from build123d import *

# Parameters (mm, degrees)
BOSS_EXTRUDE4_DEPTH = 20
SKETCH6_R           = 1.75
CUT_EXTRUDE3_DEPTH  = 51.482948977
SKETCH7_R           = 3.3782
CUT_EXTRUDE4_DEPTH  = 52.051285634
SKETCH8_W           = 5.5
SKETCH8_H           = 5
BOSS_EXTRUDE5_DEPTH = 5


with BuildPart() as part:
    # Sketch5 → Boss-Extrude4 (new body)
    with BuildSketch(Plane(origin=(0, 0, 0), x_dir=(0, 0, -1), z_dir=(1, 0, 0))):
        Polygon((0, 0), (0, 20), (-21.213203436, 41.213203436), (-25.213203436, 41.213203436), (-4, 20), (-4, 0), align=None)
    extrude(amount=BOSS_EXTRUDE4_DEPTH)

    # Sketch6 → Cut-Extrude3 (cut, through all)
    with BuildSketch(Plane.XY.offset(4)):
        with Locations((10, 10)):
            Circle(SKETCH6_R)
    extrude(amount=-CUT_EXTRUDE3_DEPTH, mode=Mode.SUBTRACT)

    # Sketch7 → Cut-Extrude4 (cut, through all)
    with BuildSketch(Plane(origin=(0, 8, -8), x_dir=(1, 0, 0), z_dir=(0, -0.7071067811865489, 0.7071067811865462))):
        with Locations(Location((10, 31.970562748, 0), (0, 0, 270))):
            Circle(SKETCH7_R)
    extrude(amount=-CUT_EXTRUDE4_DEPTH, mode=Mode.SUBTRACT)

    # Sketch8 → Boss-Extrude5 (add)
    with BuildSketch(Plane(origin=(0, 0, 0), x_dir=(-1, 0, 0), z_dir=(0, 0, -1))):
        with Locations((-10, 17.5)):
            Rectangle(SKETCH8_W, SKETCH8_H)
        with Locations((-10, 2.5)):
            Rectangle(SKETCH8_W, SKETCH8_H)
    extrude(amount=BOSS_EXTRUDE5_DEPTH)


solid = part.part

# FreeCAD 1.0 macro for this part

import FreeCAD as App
import Part
import Sketcher
from FreeCAD import Vector
Q = App.Units.Quantity

doc = App.newDocument("Part")
body = doc.addObject("PartDesign::Body", "Body")

# Sketch on YZ plane
sketch1 = body.newObject("Sketcher::SketchObject", "Sketch")
sketch1.AttachmentSupport = (doc.getObject("YZ_Plane"), [""])
sketch1.MapMode = "FlatFace"
sketch1.addGeometry([
    Part.LineSegment(Vector(0, 0, 0), Vector(20, 0, 0)),  # 0
    Part.LineSegment(Vector(20, 0, 0), Vector(41.2, 21.2, 0)),  # 1
    Part.LineSegment(Vector(41.2, 21.2, 0), Vector(41.2, 25.2, 0)),  # 2
    Part.LineSegment(Vector(41.2, 25.2, 0), Vector(20, 4, 0)),  # 3
    Part.LineSegment(Vector(20, 4, 0), Vector(0, 4, 0)),  # 4
    Part.LineSegment(Vector(0, 4, 0), Vector(0, 0, 0)),  # 5
], False)
sketch1.addConstraint([
    Sketcher.Constraint("Coincident", 0, 2, 1, 1),
    Sketcher.Constraint("Coincident", 1, 2, 2, 1),
    Sketcher.Constraint("Coincident", 2, 2, 3, 1),
    Sketcher.Constraint("Coincident", 3, 2, 4, 1),
    Sketcher.Constraint("Coincident", 4, 2, 5, 1),
    Sketcher.Constraint("Coincident", 5, 2, 0, 1),
    Sketcher.Constraint("Horizontal", 0),
    Sketcher.Constraint("Vertical", 2),
    Sketcher.Constraint("Horizontal", 4),
    Sketcher.Constraint("Vertical", 5),
    Sketcher.Constraint("Coincident", 5, 2, -1, 1),
    Sketcher.Constraint("Parallel", 1, 3),
    Sketcher.Constraint("Vertical", 0, 2, 3, 2),
    Sketcher.Constraint("DistanceX", 0, 1, 0, 2, Q("20 mm")),
    Sketcher.Constraint("DistanceY", 2, 1, 2, 2, Q("4 mm")),
    Sketcher.Constraint("Angle", 1, Q("45 deg")),
    Sketcher.Constraint("Distance", 1, Q("30 mm")),
])
pad1 = body.newObject("PartDesign::Pad", "Pad")
pad1.Profile = sketch1
pad1.Length = 20

# Sketch on XY plane
sketch2 = body.newObject("Sketcher::SketchObject", "Sketch001")
sketch2.AttachmentSupport = (doc.getObject("XY_Plane"), [""])
sketch2.MapMode = "FlatFace"
sketch2.AttachmentOffset = App.Placement(Vector(0, 0, 4), App.Rotation())
sketch2.addGeometry(Part.Circle(Vector(10, 10, 0), Vector(0, 0, 1), 1.8), False)
sketch2.addConstraint([
    Sketcher.Constraint("Diameter", 0, Q("3.5 mm")),
    Sketcher.Constraint("DistanceX", -1, 1, 0, 3, Q("10 mm")),
    Sketcher.Constraint("DistanceY", -1, 1, 0, 3, Q("10 mm")),
])
pocket1 = body.newObject("PartDesign::Pocket", "Pocket")
pocket1.Profile = sketch2
pocket1.Type = "ThroughAll"

# Sketch on an angled plane
sketch3 = body.newObject("Sketcher::SketchObject", "Sketch002")
sketch3.Placement = App.Placement(Vector(0, 8, -8), App.Rotation(Vector(1, 0, 0), Vector(0, 0.707106781, 0.707106781), Vector(0, -0.707106781, 0.707106781), "ZXY"))
sketch3.addGeometry(Part.Circle(Vector(10, 32, 0), Vector(0, 0, 1), 3.4), False)
sketch3.addConstraint([
    Sketcher.Constraint("DistanceX", -1, 1, 0, 3, Q("10 mm")),
    Sketcher.Constraint("Diameter", 0, Q("6.7564 mm")),
    Sketcher.Constraint("DistanceY", -1, 1, 0, 3, Q("31.970563 mm")),
])
pocket2 = body.newObject("PartDesign::Pocket", "Pocket001")
pocket2.Profile = sketch3
pocket2.Type = "ThroughAll"

# Sketch on XY plane
sketch4 = body.newObject("Sketcher::SketchObject", "Sketch003")
sketch4.AttachmentSupport = (doc.getObject("XY_Plane"), [""])
sketch4.MapMode = "FlatFace"
sketch4.addGeometry([
    Part.LineSegment(Vector(13, 20, 0), Vector(13, 15, 0)),  # 0
    Part.LineSegment(Vector(13, 15, 0), Vector(7, 15, 0)),  # 1
    Part.LineSegment(Vector(7, 15, 0), Vector(7, 20, 0)),  # 2
    Part.LineSegment(Vector(7, 20, 0), Vector(13, 20, 0)),  # 3
    Part.LineSegment(Vector(13, 5, 0), Vector(13, 0, 0)),  # 4
    Part.LineSegment(Vector(13, 0, 0), Vector(7, 0, 0)),  # 5
    Part.LineSegment(Vector(7, 0, 0), Vector(7, 5, 0)),  # 6
    Part.LineSegment(Vector(7, 5, 0), Vector(13, 5, 0)),  # 7
], False)
sketch4.addConstraint([
    Sketcher.Constraint("Coincident", 0, 2, 1, 1),
    Sketcher.Constraint("Coincident", 1, 2, 2, 1),
    Sketcher.Constraint("Coincident", 2, 2, 3, 1),
    Sketcher.Constraint("Coincident", 3, 2, 0, 1),
    Sketcher.Constraint("Coincident", 4, 2, 5, 1),
    Sketcher.Constraint("Coincident", 5, 2, 6, 1),
    Sketcher.Constraint("Coincident", 6, 2, 7, 1),
    Sketcher.Constraint("Coincident", 7, 2, 4, 1),
    Sketcher.Constraint("Vertical", 0),
    Sketcher.Constraint("Horizontal", 1),
    Sketcher.Constraint("Vertical", 2),
    Sketcher.Constraint("Horizontal", 3),
    Sketcher.Constraint("Vertical", 4),
    Sketcher.Constraint("Horizontal", 5),
    Sketcher.Constraint("Vertical", 6),
    Sketcher.Constraint("Horizontal", 7),
    Sketcher.Constraint("PointOnObject", 4, 2, -1),
    Sketcher.Constraint("Vertical", 3, 2, 4, 2),
    Sketcher.Constraint("Vertical", 2, 2, 5, 2),
    Sketcher.Constraint("Equal", 2, 4),
    Sketcher.Constraint("DistanceY", 0, 2, 0, 1, Q("5 mm")),
    Sketcher.Constraint("DistanceX", 1, 2, 1, 1, Q("5.5 mm")),
    Sketcher.Constraint("DistanceY", -1, 1, 0, 2, Q("15 mm")),
    Sketcher.Constraint("DistanceX", -1, 1, 0, 2, Q("12.75 mm")),
])
pad2 = body.newObject("PartDesign::Pad", "Pad001")
pad2.Profile = sketch4
pad2.Length = 5
pad2.Reversed = True

doc.recompute()
